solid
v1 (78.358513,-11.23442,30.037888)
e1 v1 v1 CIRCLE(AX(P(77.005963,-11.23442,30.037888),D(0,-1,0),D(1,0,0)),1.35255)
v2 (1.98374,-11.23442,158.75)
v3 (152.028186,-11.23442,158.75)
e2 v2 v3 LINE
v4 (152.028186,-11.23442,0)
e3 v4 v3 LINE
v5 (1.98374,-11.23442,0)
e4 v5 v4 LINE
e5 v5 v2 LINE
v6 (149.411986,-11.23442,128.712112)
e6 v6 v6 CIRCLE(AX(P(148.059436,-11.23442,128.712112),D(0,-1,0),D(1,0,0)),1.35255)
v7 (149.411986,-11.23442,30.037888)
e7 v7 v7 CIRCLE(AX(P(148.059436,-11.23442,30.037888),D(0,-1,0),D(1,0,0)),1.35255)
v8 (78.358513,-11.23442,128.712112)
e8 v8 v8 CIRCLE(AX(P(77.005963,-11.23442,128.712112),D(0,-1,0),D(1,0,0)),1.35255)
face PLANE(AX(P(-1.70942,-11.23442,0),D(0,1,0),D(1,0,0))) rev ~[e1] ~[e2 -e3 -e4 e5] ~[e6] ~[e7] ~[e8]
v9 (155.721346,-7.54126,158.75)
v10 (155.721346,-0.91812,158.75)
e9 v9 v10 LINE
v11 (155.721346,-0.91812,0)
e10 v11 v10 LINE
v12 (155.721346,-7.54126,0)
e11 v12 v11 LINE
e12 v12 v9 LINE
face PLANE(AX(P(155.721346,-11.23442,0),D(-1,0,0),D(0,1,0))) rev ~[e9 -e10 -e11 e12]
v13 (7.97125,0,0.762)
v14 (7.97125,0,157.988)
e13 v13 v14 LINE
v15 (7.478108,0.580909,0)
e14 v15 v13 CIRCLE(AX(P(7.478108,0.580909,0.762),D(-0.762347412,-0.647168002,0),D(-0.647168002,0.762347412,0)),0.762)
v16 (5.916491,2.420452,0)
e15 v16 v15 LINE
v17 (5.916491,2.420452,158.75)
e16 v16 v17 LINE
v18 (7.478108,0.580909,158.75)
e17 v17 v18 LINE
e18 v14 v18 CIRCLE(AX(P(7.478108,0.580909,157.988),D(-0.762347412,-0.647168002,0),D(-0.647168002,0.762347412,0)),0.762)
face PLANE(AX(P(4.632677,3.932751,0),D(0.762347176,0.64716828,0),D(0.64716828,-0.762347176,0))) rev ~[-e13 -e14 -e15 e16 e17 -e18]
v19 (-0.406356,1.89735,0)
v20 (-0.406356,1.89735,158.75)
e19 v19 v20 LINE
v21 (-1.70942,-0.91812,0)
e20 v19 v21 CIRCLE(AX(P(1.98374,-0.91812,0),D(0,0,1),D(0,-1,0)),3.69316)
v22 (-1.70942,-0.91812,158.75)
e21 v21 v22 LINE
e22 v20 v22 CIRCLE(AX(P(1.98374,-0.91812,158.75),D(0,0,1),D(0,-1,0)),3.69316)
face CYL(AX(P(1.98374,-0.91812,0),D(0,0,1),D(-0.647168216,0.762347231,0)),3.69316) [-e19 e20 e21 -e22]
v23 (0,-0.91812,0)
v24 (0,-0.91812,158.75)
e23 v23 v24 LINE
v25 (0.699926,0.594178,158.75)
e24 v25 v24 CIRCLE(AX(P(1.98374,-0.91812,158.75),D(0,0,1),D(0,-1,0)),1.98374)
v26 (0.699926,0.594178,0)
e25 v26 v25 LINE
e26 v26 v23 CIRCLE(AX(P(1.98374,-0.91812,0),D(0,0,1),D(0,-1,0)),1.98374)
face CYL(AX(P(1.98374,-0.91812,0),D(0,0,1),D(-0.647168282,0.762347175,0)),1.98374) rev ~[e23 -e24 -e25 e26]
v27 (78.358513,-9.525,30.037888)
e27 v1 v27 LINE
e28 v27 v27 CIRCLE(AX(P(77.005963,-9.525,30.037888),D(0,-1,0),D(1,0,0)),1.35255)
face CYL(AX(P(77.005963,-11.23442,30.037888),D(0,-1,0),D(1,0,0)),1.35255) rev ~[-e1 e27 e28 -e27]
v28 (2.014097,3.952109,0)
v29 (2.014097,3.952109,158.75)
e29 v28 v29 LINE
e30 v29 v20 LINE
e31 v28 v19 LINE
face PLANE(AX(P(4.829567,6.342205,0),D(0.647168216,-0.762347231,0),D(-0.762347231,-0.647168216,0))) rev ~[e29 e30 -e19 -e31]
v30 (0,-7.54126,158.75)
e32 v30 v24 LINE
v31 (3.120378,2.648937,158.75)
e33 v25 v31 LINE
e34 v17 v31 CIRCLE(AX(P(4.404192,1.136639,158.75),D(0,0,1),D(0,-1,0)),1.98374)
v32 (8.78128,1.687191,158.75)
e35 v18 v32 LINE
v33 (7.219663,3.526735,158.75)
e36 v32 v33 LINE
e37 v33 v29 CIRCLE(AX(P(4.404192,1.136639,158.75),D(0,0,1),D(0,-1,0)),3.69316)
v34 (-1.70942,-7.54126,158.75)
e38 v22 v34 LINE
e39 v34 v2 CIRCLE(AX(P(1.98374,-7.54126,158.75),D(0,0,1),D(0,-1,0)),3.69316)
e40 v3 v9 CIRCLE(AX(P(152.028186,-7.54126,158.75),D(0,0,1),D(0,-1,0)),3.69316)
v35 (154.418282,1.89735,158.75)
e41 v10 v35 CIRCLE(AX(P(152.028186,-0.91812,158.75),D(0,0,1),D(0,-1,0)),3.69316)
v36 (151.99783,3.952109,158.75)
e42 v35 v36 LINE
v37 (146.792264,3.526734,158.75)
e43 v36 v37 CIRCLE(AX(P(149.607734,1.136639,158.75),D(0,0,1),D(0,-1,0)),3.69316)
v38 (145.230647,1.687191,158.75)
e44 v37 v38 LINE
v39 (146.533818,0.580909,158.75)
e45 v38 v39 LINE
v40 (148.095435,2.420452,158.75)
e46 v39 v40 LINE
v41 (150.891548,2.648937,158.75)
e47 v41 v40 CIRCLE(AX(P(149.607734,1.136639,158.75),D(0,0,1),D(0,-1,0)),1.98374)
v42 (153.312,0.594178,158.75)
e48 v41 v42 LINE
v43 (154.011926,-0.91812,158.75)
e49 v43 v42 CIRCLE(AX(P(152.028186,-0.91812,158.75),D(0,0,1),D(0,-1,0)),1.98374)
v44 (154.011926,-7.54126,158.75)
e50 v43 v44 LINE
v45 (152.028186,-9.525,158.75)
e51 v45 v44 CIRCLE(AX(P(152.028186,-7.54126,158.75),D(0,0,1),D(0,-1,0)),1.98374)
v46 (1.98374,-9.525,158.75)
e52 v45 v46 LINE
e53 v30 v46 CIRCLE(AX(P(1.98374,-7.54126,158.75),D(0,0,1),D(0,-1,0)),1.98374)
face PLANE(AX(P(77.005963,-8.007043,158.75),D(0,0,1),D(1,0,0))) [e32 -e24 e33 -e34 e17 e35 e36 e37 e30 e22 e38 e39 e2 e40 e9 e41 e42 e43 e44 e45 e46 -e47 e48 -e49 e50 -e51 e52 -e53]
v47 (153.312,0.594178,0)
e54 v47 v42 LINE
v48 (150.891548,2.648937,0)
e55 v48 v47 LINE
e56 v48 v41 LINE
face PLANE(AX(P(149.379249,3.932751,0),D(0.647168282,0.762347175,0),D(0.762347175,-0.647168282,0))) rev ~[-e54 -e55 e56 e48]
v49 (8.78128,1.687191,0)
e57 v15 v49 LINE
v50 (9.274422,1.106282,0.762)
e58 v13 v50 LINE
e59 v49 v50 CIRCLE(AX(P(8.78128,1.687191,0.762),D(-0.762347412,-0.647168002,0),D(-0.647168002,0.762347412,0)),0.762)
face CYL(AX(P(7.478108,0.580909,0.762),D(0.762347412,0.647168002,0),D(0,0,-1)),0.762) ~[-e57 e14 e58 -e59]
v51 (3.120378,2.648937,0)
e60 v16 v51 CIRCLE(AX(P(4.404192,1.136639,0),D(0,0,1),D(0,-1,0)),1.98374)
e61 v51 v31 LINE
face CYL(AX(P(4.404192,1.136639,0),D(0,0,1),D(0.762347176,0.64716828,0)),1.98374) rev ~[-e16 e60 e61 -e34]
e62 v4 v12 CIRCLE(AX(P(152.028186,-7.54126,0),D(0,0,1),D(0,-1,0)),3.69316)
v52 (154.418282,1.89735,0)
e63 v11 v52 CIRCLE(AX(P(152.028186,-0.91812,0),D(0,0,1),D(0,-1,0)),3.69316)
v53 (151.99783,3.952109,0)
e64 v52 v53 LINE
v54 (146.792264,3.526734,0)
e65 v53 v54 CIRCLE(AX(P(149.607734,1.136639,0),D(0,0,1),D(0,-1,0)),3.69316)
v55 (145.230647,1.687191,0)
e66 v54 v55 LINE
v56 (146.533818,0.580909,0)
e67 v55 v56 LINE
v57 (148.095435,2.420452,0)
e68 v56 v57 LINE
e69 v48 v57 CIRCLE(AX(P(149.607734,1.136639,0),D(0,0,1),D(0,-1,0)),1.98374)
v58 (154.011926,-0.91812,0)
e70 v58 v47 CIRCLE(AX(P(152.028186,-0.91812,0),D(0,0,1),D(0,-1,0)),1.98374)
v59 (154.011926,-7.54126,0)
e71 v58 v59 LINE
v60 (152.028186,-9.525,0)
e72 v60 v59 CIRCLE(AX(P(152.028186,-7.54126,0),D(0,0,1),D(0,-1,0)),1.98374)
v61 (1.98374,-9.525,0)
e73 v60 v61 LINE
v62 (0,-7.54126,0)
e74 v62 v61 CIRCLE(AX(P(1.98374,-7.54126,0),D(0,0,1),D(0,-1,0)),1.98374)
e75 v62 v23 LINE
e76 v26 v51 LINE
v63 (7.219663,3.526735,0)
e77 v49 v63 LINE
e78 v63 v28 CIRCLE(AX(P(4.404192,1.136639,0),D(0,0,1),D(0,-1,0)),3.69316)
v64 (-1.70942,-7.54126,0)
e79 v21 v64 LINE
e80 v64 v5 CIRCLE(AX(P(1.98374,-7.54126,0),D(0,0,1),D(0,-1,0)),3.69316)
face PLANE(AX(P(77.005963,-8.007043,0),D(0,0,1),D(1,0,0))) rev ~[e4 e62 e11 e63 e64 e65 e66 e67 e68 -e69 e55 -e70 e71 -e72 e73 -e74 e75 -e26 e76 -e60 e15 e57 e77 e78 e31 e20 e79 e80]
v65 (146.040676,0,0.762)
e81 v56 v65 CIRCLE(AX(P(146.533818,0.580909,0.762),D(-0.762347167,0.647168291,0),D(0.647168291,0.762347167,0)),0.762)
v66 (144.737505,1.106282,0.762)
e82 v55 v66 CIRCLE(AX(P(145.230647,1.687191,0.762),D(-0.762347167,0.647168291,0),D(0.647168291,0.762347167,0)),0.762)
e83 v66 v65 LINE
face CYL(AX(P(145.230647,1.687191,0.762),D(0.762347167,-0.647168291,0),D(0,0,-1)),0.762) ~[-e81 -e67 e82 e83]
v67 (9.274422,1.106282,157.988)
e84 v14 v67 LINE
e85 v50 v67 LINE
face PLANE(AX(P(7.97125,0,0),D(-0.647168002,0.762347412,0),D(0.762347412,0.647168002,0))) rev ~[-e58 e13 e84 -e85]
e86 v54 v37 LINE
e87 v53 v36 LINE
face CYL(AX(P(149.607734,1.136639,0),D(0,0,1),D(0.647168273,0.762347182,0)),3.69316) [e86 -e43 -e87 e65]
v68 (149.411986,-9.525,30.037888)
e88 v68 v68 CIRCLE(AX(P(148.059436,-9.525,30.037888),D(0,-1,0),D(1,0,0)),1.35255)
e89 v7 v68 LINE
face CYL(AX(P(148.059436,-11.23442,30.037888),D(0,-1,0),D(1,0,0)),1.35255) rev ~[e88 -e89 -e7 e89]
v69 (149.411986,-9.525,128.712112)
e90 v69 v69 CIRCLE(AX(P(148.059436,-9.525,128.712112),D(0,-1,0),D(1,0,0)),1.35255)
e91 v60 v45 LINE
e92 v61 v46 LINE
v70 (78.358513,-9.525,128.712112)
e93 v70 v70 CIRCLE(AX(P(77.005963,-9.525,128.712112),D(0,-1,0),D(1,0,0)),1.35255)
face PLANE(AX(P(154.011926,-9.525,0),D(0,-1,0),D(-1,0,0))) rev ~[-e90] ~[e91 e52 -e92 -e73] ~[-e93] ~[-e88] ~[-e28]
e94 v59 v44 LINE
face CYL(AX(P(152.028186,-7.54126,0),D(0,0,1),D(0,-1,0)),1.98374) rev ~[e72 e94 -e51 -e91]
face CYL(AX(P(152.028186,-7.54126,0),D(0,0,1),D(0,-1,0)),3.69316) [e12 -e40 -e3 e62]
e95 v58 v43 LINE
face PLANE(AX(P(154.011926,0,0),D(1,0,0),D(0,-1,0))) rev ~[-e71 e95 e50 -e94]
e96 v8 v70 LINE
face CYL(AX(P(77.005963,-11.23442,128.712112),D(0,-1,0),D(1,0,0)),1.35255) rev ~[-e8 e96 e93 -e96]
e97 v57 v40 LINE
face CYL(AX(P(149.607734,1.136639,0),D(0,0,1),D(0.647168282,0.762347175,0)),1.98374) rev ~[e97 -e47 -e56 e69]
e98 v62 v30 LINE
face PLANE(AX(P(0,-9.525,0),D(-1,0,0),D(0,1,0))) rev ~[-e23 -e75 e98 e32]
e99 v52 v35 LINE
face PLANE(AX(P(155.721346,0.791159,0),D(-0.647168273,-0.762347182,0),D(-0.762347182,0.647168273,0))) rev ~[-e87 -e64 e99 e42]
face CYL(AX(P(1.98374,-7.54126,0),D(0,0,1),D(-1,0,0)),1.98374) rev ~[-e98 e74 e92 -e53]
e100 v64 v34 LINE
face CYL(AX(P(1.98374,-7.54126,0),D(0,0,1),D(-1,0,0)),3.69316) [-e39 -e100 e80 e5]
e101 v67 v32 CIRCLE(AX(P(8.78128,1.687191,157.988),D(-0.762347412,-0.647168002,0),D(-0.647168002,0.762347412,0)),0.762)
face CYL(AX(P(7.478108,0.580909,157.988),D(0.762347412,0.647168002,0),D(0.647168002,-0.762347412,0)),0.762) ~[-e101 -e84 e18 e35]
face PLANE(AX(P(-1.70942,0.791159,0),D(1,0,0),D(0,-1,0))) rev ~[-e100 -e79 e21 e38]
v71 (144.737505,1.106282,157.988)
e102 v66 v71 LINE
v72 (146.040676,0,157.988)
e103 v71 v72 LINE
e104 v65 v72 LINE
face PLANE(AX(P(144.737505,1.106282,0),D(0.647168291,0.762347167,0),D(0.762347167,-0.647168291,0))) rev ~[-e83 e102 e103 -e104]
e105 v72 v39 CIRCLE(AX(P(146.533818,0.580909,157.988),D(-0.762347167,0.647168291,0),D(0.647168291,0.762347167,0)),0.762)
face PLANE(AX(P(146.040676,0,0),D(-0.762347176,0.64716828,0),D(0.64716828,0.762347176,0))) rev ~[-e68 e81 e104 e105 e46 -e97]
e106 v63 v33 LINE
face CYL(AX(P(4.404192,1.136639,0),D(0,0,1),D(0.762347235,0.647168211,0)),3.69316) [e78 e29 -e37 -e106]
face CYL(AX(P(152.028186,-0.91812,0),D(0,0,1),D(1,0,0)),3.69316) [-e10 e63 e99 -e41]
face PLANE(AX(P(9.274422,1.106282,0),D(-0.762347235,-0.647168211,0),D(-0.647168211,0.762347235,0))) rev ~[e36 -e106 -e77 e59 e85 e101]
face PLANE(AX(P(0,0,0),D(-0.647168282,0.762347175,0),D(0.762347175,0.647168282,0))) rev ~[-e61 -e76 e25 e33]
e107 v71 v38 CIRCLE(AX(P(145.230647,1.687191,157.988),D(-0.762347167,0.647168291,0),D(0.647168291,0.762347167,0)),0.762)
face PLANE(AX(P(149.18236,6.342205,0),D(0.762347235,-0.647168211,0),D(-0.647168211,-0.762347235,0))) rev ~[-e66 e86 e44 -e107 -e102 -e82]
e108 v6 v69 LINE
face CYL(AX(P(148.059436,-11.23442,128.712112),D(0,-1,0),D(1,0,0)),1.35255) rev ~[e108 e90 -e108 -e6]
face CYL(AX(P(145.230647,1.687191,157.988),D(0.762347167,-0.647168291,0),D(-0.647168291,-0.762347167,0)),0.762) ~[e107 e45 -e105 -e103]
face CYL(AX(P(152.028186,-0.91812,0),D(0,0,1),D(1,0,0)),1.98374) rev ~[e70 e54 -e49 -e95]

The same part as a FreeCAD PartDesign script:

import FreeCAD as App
import Part
import Sketcher

V = App.Vector
Q = App.Units.Quantity


def edges_at(feature, points):
    """Names of the edges that pass closest to the given points."""
    edges = feature.Shape.Edges
    near = lambda p: min(range(len(edges)), key=lambda i: edges[i].distToShape(Part.Vertex(*p))[0])
    return sorted({f"Edge{near(p) + 1}" for p in points})


def add_polygon(sketch, points):
    """Adds a closed chain of lines whose ends are joined by coincident constraints."""
    first, n = sketch.GeometryCount, len(points)
    for a, b in zip(points, points[1:] + points[:1]):
        sketch.addGeometry(Part.LineSegment(App.Vector(*a, 0), App.Vector(*b, 0)), False)
    for i in range(n):
        sketch.addConstraint(Sketcher.Constraint("Coincident", first + i, 2, first + (i + 1) % n, 1))

doc = App.newDocument("Part")
body = doc.addObject("PartDesign::Body", "Body")

# Sketch on XY plane
sketch1 = doc.addObject("Sketcher::SketchObject", "Sketch")
body.addObject(sketch1)
sketch1.AttachmentSupport = (doc.XY_Plane, [""])
sketch1.MapMode = "FlatFace"
add_polygon(sketch1, [(0, -9.5), (0, 0), (4.6, 3.9), (8, 0), (9.3, 1.1), (4.8, 6.3), (-1.7, 0.8), (-1.7, -11.2), (155.7, -11.2), (155.7, 0.8), (149.2, 6.3), (144.7, 1.1), (146, 0), (149.4, 3.9), (154, 0), (154, -9.5)])  # lines 0-15
sketch1.addConstraint([
    Sketcher.Constraint("Vertical", 0),
    Sketcher.Constraint("Vertical", 6),
    Sketcher.Constraint("Horizontal", 7),
    Sketcher.Constraint("Vertical", 8),
    Sketcher.Constraint("Vertical", 14),
    Sketcher.Constraint("Horizontal", 15),
    Sketcher.Constraint("Coincident", 0, 2, -1, 1),
    Sketcher.Constraint("PointOnObject", 2, 2, -1),
    Sketcher.Constraint("PointOnObject", 11, 2, -1),
    Sketcher.Constraint("PointOnObject", 13, 2, -1),
    Sketcher.Constraint("Perpendicular", 1, 2),
    Sketcher.Constraint("Perpendicular", 2, 3),
    Sketcher.Constraint("Perpendicular", 3, 4),
    Sketcher.Constraint("Perpendicular", 4, 5),
    Sketcher.Constraint("Perpendicular", 9, 10),
    Sketcher.Constraint("Perpendicular", 10, 11),
    Sketcher.Constraint("Perpendicular", 11, 12),
    Sketcher.Constraint("Perpendicular", 12, 13),
    Sketcher.Constraint("Horizontal", 5, 2, 8, 2),
    Sketcher.Constraint("Horizontal", 4, 2, 9, 2),
    Sketcher.Constraint("Horizontal", 3, 2, 10, 2),
    Sketcher.Constraint("Horizontal", 1, 2, 12, 2),
    Sketcher.Constraint("Equal", 5, 9),
    Sketcher.Constraint("DistanceY", 0, 1, 0, 2, Q("0.375 in")),
    Sketcher.Constraint("Distance", 2, Q("0.2031 in")),
    Sketcher.Constraint("Distance", 3, Q("0.0673 in")),
    Sketcher.Constraint("Distance", 4, Q("0.2704 in")),
    Sketcher.Constraint("DistanceX", 5, 2, -1, 1, Q("0.0673 in")),
    Sketcher.Constraint("DistanceY", 6, 2, -1, 1, Q("0.4423 in")),
    Sketcher.Constraint("DistanceY", 6, 2, 6, 1, Q("12.025579 mm")),
    Sketcher.Constraint("DistanceX", 7, 1, 7, 2, Q("157.430766 mm")),
])
pad1 = doc.addObject("PartDesign::Pad", "Pad")
body.addObject(pad1)
pad1.Profile = sketch1
pad1.Length = Q("6.25 in")
doc.recompute()

fillet = doc.addObject("PartDesign::Fillet", "Fillet")
body.addObject(fillet)
fillet.Base = (pad1, edges_at(pad1, [
    (149.182, 6.342, 79.375),
    (155.721, 0.791, 79.375),
    (155.721, -11.234, 79.375),
    (-1.709, -11.234, 79.375),
    (-1.709, 0.791, 79.375),
    (4.83, 6.342, 79.375),
]))
fillet.Radius = Q("0.1454 in")
doc.recompute()

fillet2 = doc.addObject("PartDesign::Fillet", "Fillet001")
body.addObject(fillet2)
fillet2.Base = (fillet, edges_at(fillet, [
    (149.379, 3.933, 79.375),
    (154.012, 0, 79.375),
    (154.012, -9.525, 79.375),
    (0, -9.525, 79.375),
    (0, 0, 79.375),
    (4.633, 3.933, 79.375),
]))
fillet2.Radius = Q("0.0781 in")

# Sketch on XZ plane
sketch2 = doc.addObject("Sketcher::SketchObject", "Sketch001")
body.addObject(sketch2)
sketch2.AttachmentSupport = (doc.XZ_Plane, [""])
sketch2.MapMode = "FlatFace"
sketch2.AttachmentOffset = App.Placement(V(0, 0, 0.4423 * 25.4), App.Rotation())
sketch2.addGeometry([
    Part.Circle(V(148.1, 128.7, 0), V(0, 0, 1), 1.4),
    Part.Circle(V(77, 128.7, 0), V(0, 0, 1), 1.4),
    Part.Circle(V(77, 30, 0), V(0, 0, 1), 1.4),
    Part.Circle(V(148.1, 30, 0), V(0, 0, 1), 1.4),
], False)
sketch2.addConstraint([
    Sketcher.Constraint("Equal", 0, 1),
    Sketcher.Constraint("Equal", 1, 2),
    Sketcher.Constraint("Equal", 2, 3),
    Sketcher.Constraint("Horizontal", 0, 3, 1, 3),
    Sketcher.Constraint("Horizontal", 2, 3, 3, 3),
    Sketcher.Constraint("Vertical", 1, 3, 2, 3),
    Sketcher.Constraint("Vertical", 0, 3, 3, 3),
    Sketcher.Constraint("Diameter", 0, Q("0.1065 in")),
    Sketcher.Constraint("DistanceY", -1, 1, 0, 3, Q("128.712112 mm")),
    Sketcher.Constraint("DistanceX", -1, 1, 0, 3, Q("148.059436 mm")),
    Sketcher.Constraint("DistanceX", -1, 1, 1, 3, Q("77.005963 mm")),
    Sketcher.Constraint("DistanceY", -1, 1, 2, 3, Q("30.037888 mm")),
])
pocket1 = doc.addObject("PartDesign::Pocket", "Pocket")
body.addObject(pocket1)
pocket1.Profile = sketch2
pocket1.Length = Q("0.0673 in")
doc.recompute()

fillet3 = doc.addObject("PartDesign::Fillet", "Fillet002")
body.addObject(fillet3)
fillet3.Base = (pocket1, edges_at(pocket1, [
    (145.389, 0.553, 158.75),
    (145.389, 0.553, 0),
    (8.623, 0.553, 0),
    (8.623, 0.553, 158.75),
]))
fillet3.Radius = Q("0.03 in")

doc.recompute()
